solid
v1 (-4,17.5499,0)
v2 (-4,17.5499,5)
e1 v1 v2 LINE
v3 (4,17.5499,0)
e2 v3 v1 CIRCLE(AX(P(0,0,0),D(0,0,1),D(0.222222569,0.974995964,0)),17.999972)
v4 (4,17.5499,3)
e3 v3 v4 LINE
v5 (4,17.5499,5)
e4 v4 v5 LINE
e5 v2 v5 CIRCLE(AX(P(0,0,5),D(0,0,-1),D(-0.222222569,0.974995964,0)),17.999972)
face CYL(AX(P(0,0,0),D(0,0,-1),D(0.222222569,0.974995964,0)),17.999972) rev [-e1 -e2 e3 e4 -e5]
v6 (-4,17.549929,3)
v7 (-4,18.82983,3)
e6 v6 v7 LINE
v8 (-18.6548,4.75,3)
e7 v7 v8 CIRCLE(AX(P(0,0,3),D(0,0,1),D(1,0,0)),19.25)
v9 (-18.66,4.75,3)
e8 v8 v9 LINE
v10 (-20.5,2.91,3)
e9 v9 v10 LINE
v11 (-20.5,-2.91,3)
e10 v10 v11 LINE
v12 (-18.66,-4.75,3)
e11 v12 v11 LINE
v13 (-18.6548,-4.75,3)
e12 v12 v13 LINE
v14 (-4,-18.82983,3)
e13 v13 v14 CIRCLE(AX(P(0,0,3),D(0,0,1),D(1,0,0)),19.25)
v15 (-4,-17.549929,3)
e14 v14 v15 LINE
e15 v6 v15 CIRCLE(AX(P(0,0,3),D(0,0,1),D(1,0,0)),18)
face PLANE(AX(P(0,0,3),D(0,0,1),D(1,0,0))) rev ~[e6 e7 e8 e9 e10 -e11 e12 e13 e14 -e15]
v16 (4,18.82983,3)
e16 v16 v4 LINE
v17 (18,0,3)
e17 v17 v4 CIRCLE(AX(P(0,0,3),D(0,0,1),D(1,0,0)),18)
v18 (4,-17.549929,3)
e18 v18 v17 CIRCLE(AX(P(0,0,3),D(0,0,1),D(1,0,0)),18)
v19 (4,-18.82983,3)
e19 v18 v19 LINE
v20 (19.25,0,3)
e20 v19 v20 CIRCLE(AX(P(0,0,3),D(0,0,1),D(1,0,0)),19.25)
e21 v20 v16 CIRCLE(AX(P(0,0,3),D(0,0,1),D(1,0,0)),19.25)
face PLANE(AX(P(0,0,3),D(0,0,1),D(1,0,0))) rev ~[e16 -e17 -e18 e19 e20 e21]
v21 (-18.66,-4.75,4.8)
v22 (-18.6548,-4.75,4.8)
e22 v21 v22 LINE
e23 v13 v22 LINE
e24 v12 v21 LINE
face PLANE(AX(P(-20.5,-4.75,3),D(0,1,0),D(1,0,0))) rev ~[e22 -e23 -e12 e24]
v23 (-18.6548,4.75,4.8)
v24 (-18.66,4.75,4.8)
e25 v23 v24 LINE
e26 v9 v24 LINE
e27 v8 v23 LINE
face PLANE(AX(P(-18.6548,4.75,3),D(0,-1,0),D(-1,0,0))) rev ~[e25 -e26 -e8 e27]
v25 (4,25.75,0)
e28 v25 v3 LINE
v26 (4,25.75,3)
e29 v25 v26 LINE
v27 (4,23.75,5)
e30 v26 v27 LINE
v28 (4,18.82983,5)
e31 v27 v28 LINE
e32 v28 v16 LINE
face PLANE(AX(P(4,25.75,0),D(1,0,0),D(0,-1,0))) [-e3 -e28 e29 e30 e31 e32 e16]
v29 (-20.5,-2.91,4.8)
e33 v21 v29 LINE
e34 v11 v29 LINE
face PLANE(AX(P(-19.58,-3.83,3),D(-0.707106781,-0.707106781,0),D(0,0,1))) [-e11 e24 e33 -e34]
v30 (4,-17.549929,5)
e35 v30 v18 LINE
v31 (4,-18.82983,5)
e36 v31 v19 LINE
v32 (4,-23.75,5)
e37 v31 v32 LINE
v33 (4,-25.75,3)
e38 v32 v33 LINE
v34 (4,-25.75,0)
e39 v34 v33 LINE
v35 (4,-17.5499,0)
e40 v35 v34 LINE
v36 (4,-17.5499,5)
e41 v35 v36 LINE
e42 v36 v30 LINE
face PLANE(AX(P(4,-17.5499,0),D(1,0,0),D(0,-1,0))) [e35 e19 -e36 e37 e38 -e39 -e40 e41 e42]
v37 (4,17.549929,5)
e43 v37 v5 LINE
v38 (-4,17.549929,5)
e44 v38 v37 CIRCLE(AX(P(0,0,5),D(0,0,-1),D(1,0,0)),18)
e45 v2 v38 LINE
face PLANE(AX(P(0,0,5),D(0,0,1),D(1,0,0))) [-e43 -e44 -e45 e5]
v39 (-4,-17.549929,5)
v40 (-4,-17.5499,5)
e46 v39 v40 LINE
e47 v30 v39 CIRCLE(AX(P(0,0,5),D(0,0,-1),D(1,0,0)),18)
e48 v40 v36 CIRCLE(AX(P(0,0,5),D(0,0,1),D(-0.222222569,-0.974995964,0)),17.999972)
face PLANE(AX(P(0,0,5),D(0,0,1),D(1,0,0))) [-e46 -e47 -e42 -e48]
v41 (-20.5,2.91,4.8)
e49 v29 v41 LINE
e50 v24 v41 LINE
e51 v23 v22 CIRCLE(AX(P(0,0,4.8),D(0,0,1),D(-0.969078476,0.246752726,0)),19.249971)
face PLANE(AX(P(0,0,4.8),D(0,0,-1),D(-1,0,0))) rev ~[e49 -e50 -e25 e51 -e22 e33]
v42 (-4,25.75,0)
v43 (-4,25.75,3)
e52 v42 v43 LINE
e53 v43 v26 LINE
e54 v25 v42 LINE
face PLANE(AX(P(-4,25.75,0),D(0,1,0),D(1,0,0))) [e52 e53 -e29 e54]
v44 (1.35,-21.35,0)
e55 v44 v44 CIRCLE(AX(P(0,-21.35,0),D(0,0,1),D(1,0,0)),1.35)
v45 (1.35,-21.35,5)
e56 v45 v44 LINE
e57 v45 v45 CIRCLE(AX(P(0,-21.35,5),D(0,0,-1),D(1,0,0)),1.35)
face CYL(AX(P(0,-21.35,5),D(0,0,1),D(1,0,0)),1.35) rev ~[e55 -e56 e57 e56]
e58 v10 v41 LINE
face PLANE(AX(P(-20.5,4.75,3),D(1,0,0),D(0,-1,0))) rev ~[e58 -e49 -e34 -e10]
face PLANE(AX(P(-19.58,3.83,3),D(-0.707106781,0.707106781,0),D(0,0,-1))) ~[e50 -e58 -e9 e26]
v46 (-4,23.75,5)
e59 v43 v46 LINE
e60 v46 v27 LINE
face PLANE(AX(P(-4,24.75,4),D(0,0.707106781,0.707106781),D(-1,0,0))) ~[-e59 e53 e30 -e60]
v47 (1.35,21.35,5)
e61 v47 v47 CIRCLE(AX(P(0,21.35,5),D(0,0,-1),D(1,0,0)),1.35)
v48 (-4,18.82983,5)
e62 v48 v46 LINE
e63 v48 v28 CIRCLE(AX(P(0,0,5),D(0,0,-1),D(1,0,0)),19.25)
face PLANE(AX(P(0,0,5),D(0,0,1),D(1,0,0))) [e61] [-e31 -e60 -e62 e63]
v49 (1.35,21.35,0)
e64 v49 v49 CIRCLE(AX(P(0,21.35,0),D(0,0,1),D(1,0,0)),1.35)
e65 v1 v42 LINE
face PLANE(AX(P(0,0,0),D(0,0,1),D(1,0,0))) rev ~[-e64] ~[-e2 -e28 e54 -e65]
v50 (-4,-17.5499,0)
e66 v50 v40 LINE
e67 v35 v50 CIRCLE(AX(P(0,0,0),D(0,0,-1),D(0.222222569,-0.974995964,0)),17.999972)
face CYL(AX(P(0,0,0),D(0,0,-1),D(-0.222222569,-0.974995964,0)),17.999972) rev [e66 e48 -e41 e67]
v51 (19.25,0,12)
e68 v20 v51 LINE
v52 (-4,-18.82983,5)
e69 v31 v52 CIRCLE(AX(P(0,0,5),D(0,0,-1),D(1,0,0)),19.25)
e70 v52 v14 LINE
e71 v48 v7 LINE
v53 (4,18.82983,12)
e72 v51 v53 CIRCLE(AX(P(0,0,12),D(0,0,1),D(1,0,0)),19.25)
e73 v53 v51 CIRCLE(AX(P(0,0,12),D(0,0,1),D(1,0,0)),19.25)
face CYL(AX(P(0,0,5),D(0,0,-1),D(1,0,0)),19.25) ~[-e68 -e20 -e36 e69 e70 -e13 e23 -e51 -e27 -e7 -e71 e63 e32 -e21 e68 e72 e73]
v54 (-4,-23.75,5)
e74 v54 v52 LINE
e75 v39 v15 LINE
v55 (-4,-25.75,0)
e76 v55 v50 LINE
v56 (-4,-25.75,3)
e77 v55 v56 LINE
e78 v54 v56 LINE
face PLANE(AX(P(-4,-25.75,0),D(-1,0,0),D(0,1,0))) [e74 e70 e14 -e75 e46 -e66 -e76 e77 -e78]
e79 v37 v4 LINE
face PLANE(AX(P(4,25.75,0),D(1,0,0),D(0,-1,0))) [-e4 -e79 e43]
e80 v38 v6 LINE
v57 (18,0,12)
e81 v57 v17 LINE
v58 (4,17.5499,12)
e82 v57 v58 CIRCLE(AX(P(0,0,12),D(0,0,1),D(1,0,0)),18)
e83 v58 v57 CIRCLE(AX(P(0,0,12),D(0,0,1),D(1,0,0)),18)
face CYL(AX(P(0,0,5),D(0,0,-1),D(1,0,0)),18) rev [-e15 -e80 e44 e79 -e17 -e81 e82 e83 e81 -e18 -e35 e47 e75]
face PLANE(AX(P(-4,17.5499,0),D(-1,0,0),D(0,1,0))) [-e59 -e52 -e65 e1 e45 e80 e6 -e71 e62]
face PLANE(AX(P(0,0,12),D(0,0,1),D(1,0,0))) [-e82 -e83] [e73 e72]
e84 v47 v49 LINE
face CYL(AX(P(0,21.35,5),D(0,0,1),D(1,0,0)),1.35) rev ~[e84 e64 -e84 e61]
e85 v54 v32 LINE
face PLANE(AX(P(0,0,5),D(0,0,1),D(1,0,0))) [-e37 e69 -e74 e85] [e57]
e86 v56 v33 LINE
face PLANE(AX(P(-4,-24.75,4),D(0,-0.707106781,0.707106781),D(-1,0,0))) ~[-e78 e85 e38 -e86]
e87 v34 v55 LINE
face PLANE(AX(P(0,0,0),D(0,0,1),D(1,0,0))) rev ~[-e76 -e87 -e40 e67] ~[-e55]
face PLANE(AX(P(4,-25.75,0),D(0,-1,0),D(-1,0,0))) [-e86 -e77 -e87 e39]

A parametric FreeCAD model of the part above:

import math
import FreeCAD as App
import Part
import Sketcher

V = App.Vector
Q = App.Units.Quantity


def edges_at(feature, points):
    """Names of the edges that pass closest to the given points."""
    edges = feature.Shape.Edges
    near = lambda p: min(range(len(edges)), key=lambda i: edges[i].distToShape(Part.Vertex(*p))[0])
    return sorted({f"Edge{near(p) + 1}" for p in points})

doc = App.newDocument("Part")
body = doc.addObject("PartDesign::Body", "Body")
body.AllowCompound = True

sketch1 = body.newObject("Sketcher::SketchObject", "Sketch")
sketch1.AttachmentSupport = (doc.getObject("XY_Plane"), [""])
sketch1.MapMode = "FlatFace"
sketch1.addGeometry(Part.ArcOfCircle(Part.Circle(V(0, 0, 0), V(0, 0, 1), 18), math.radians(-103), math.radians(-77)), False)
sketch1.addGeometry(Part.LineSegment(V(-4, -18, 0), V(-4, -26, 0)), False)
sketch1.addGeometry(Part.LineSegment(V(-4, -26, 0), V(4, -26, 0)), False)
sketch1.addGeometry(Part.LineSegment(V(4, -26, 0), V(4, -18, 0)), False)
sketch1.addGeometry(Part.LineSegment(V(-4, 26, 0), V(-4, 18, 0)), False)
sketch1.addGeometry(Part.ArcOfCircle(Part.Circle(V(0, 0, 0), V(0, 0, 1), 18), math.radians(77), math.radians(103)), False)
sketch1.addGeometry(Part.LineSegment(V(4, 18, 0), V(4, 26, 0)), False)
sketch1.addGeometry(Part.LineSegment(V(4, 26, 0), V(-4, 26, 0)), False)
sketch1.addConstraint(Sketcher.Constraint("Coincident", 0, 1, 1, 1))
sketch1.addConstraint(Sketcher.Constraint("Coincident", 1, 2, 2, 1))
sketch1.addConstraint(Sketcher.Constraint("Coincident", 2, 2, 3, 1))
sketch1.addConstraint(Sketcher.Constraint("Coincident", 3, 2, 0, 2))
sketch1.addConstraint(Sketcher.Constraint("Coincident", 4, 2, 5, 2))
sketch1.addConstraint(Sketcher.Constraint("Coincident", 5, 1, 6, 1))
sketch1.addConstraint(Sketcher.Constraint("Coincident", 6, 2, 7, 1))
sketch1.addConstraint(Sketcher.Constraint("Coincident", 7, 2, 4, 1))
sketch1.addConstraint(Sketcher.Constraint("Vertical", 1))
sketch1.addConstraint(Sketcher.Constraint("Horizontal", 2))
sketch1.addConstraint(Sketcher.Constraint("Vertical", 3))
sketch1.addConstraint(Sketcher.Constraint("Vertical", 4))
sketch1.addConstraint(Sketcher.Constraint("Vertical", 6))
sketch1.addConstraint(Sketcher.Constraint("Horizontal", 7))
sketch1.addConstraint(Sketcher.Constraint("Coincident", 0, 3, -1, 1))
sketch1.addConstraint(Sketcher.Constraint("Coincident", 5, 3, -1, 1))
sketch1.addConstraint(Sketcher.Constraint("Equal", 0, 5))
sketch1.addConstraint(Sketcher.Constraint("Symmetric", 1, 2, 6, 2, -1, 1))
sketch1.addConstraint(Sketcher.Constraint("Horizontal", 0, 1, 3, 2))
sketch1.addConstraint(Sketcher.Constraint("Horizontal", 4, 2, 5, 1))
sketch1.addConstraint(Sketcher.Constraint("Radius", 0, Q("18 mm")))
sketch1.addConstraint(Sketcher.Constraint("DistanceX", 2, 1, 2, 2, Q("8 mm")))
sketch1.addConstraint(Sketcher.Constraint("DistanceY", 1, 2, -1, 1, Q("25.75 mm")))
pad1 = body.newObject("PartDesign::Pad", "Pad")
pad1.Profile = sketch1
pad1.Length = 5
doc.recompute()

chamfer = body.newObject("PartDesign::Chamfer", "Chamfer")
chamfer.Base = (pad1, edges_at(pad1, [(0, 25.75, 5), (0, -25.75, 5)]))
chamfer.Size = 2

sketch2 = body.newObject("Sketcher::SketchObject", "Sketch001")
sketch2.AttachmentSupport = (doc.getObject("XY_Plane"), [""])
sketch2.MapMode = "FlatFace"
sketch2.AttachmentOffset = App.Placement(V(0, 0, 5), App.Rotation())
sketch2.addGeometry(Part.Circle(V(0, 0, 0), V(0, 0, 1), 19), False)
sketch2.addGeometry(Part.Circle(V(0, 0, 0), V(0, 0, 1), 18), False)
sketch2.addConstraint(Sketcher.Constraint("Coincident", 0, 3, -1, 1))
sketch2.addConstraint(Sketcher.Constraint("Coincident", 1, 3, -1, 1))
sketch2.addConstraint(Sketcher.Constraint("Diameter", 0, Q("38.5 mm")))
sketch2.addConstraint(Sketcher.Constraint("Diameter", 1, Q("36 mm")))
pad2 = body.newObject("PartDesign::Pad", "Pad001")
pad2.Profile = sketch2
pad2.Type = "TwoLengths"
pad2.Length = 7
pad2.Length2 = 2

sketch3 = body.newObject("Sketcher::SketchObject", "Sketch002")
sketch3.AttachmentSupport = (doc.getObject("XY_Plane"), [""])
sketch3.MapMode = "FlatFace"
sketch3.AttachmentOffset = App.Placement(V(0, 0, 3), App.Rotation())
sketch3.addGeometry(Part.LineSegment(V(-20.5, 4.8, 0), V(-18.7, 4.8, 0)), False)
sketch3.addGeometry(Part.ArcOfCircle(Part.Circle(V(0, 0, 0), V(0, 0, 1), 19.2), math.radians(166), math.radians(194)), False)
sketch3.addGeometry(Part.LineSegment(V(-18.7, -4.8, 0), V(-20.5, -4.8, 0)), False)
sketch3.addGeometry(Part.LineSegment(V(-20.5, -4.8, 0), V(-20.5, 4.8, 0)), False)
sketch3.addConstraint(Sketcher.Constraint("Coincident", 0, 2, 1, 1))
sketch3.addConstraint(Sketcher.Constraint("Coincident", 1, 2, 2, 1))
sketch3.addConstraint(Sketcher.Constraint("Coincident", 2, 2, 3, 1))
sketch3.addConstraint(Sketcher.Constraint("Coincident", 3, 2, 0, 1))
sketch3.addConstraint(Sketcher.Constraint("Horizontal", 0))
sketch3.addConstraint(Sketcher.Constraint("Horizontal", 2))
sketch3.addConstraint(Sketcher.Constraint("Vertical", 3))
sketch3.addConstraint(Sketcher.Constraint("Coincident", 1, 3, -1, 1))
sketch3.addConstraint(Sketcher.Constraint("Vertical", 0, 2, 1, 2))
sketch3.addConstraint(Sketcher.Constraint("DistanceY", 3, 1, 3, 2, Q("9.5 mm")))
sketch3.addConstraint(Sketcher.Constraint("Radius", 1, Q("19.25 mm")))
sketch3.addConstraint(Sketcher.Constraint("DistanceX", 2, 2, -1, 1, Q("20.5 mm")))
pad3 = body.newObject("PartDesign::Pad", "Pad002")
pad3.Profile = sketch3
pad3.Length = 1.8
doc.recompute()

chamfer2 = body.newObject("PartDesign::Chamfer", "Chamfer001")
chamfer2.Base = (pad3, edges_at(pad3, [(-20.5, 4.75, 3.9), (-20.5, -4.75, 3.9)]))
chamfer2.Size = 1.84

sketch4 = body.newObject("Sketcher::SketchObject", "Sketch003")
sketch4.AttachmentSupport = (doc.getObject("XY_Plane"), [""])
sketch4.MapMode = "FlatFace"
sketch4.AttachmentOffset = App.Placement(V(0, 0, 5), App.Rotation())
sketch4.addGeometry(Part.Circle(V(0, 21.4, 0), V(0, 0, 1), 1.4), False)
sketch4.addGeometry(Part.Circle(V(0, -21.4, 0), V(0, 0, 1), 1.4), False)
sketch4.addConstraint(Sketcher.Constraint("Equal", 0, 1))
sketch4.addConstraint(Sketcher.Constraint("Symmetric", 0, 3, 1, 3, -1, 1))
sketch4.addConstraint(Sketcher.Constraint("PointOnObject", 0, 3, -2))
sketch4.addConstraint(Sketcher.Constraint("Diameter", 0, Q("2.7 mm")))
sketch4.addConstraint(Sketcher.Constraint("DistanceY", 1, 3, 0, 3, Q("42.7 mm")))
pocket1 = body.newObject("PartDesign::Pocket", "Pocket")
pocket1.Profile = sketch4
pocket1.Length = 5

doc.recompute()
